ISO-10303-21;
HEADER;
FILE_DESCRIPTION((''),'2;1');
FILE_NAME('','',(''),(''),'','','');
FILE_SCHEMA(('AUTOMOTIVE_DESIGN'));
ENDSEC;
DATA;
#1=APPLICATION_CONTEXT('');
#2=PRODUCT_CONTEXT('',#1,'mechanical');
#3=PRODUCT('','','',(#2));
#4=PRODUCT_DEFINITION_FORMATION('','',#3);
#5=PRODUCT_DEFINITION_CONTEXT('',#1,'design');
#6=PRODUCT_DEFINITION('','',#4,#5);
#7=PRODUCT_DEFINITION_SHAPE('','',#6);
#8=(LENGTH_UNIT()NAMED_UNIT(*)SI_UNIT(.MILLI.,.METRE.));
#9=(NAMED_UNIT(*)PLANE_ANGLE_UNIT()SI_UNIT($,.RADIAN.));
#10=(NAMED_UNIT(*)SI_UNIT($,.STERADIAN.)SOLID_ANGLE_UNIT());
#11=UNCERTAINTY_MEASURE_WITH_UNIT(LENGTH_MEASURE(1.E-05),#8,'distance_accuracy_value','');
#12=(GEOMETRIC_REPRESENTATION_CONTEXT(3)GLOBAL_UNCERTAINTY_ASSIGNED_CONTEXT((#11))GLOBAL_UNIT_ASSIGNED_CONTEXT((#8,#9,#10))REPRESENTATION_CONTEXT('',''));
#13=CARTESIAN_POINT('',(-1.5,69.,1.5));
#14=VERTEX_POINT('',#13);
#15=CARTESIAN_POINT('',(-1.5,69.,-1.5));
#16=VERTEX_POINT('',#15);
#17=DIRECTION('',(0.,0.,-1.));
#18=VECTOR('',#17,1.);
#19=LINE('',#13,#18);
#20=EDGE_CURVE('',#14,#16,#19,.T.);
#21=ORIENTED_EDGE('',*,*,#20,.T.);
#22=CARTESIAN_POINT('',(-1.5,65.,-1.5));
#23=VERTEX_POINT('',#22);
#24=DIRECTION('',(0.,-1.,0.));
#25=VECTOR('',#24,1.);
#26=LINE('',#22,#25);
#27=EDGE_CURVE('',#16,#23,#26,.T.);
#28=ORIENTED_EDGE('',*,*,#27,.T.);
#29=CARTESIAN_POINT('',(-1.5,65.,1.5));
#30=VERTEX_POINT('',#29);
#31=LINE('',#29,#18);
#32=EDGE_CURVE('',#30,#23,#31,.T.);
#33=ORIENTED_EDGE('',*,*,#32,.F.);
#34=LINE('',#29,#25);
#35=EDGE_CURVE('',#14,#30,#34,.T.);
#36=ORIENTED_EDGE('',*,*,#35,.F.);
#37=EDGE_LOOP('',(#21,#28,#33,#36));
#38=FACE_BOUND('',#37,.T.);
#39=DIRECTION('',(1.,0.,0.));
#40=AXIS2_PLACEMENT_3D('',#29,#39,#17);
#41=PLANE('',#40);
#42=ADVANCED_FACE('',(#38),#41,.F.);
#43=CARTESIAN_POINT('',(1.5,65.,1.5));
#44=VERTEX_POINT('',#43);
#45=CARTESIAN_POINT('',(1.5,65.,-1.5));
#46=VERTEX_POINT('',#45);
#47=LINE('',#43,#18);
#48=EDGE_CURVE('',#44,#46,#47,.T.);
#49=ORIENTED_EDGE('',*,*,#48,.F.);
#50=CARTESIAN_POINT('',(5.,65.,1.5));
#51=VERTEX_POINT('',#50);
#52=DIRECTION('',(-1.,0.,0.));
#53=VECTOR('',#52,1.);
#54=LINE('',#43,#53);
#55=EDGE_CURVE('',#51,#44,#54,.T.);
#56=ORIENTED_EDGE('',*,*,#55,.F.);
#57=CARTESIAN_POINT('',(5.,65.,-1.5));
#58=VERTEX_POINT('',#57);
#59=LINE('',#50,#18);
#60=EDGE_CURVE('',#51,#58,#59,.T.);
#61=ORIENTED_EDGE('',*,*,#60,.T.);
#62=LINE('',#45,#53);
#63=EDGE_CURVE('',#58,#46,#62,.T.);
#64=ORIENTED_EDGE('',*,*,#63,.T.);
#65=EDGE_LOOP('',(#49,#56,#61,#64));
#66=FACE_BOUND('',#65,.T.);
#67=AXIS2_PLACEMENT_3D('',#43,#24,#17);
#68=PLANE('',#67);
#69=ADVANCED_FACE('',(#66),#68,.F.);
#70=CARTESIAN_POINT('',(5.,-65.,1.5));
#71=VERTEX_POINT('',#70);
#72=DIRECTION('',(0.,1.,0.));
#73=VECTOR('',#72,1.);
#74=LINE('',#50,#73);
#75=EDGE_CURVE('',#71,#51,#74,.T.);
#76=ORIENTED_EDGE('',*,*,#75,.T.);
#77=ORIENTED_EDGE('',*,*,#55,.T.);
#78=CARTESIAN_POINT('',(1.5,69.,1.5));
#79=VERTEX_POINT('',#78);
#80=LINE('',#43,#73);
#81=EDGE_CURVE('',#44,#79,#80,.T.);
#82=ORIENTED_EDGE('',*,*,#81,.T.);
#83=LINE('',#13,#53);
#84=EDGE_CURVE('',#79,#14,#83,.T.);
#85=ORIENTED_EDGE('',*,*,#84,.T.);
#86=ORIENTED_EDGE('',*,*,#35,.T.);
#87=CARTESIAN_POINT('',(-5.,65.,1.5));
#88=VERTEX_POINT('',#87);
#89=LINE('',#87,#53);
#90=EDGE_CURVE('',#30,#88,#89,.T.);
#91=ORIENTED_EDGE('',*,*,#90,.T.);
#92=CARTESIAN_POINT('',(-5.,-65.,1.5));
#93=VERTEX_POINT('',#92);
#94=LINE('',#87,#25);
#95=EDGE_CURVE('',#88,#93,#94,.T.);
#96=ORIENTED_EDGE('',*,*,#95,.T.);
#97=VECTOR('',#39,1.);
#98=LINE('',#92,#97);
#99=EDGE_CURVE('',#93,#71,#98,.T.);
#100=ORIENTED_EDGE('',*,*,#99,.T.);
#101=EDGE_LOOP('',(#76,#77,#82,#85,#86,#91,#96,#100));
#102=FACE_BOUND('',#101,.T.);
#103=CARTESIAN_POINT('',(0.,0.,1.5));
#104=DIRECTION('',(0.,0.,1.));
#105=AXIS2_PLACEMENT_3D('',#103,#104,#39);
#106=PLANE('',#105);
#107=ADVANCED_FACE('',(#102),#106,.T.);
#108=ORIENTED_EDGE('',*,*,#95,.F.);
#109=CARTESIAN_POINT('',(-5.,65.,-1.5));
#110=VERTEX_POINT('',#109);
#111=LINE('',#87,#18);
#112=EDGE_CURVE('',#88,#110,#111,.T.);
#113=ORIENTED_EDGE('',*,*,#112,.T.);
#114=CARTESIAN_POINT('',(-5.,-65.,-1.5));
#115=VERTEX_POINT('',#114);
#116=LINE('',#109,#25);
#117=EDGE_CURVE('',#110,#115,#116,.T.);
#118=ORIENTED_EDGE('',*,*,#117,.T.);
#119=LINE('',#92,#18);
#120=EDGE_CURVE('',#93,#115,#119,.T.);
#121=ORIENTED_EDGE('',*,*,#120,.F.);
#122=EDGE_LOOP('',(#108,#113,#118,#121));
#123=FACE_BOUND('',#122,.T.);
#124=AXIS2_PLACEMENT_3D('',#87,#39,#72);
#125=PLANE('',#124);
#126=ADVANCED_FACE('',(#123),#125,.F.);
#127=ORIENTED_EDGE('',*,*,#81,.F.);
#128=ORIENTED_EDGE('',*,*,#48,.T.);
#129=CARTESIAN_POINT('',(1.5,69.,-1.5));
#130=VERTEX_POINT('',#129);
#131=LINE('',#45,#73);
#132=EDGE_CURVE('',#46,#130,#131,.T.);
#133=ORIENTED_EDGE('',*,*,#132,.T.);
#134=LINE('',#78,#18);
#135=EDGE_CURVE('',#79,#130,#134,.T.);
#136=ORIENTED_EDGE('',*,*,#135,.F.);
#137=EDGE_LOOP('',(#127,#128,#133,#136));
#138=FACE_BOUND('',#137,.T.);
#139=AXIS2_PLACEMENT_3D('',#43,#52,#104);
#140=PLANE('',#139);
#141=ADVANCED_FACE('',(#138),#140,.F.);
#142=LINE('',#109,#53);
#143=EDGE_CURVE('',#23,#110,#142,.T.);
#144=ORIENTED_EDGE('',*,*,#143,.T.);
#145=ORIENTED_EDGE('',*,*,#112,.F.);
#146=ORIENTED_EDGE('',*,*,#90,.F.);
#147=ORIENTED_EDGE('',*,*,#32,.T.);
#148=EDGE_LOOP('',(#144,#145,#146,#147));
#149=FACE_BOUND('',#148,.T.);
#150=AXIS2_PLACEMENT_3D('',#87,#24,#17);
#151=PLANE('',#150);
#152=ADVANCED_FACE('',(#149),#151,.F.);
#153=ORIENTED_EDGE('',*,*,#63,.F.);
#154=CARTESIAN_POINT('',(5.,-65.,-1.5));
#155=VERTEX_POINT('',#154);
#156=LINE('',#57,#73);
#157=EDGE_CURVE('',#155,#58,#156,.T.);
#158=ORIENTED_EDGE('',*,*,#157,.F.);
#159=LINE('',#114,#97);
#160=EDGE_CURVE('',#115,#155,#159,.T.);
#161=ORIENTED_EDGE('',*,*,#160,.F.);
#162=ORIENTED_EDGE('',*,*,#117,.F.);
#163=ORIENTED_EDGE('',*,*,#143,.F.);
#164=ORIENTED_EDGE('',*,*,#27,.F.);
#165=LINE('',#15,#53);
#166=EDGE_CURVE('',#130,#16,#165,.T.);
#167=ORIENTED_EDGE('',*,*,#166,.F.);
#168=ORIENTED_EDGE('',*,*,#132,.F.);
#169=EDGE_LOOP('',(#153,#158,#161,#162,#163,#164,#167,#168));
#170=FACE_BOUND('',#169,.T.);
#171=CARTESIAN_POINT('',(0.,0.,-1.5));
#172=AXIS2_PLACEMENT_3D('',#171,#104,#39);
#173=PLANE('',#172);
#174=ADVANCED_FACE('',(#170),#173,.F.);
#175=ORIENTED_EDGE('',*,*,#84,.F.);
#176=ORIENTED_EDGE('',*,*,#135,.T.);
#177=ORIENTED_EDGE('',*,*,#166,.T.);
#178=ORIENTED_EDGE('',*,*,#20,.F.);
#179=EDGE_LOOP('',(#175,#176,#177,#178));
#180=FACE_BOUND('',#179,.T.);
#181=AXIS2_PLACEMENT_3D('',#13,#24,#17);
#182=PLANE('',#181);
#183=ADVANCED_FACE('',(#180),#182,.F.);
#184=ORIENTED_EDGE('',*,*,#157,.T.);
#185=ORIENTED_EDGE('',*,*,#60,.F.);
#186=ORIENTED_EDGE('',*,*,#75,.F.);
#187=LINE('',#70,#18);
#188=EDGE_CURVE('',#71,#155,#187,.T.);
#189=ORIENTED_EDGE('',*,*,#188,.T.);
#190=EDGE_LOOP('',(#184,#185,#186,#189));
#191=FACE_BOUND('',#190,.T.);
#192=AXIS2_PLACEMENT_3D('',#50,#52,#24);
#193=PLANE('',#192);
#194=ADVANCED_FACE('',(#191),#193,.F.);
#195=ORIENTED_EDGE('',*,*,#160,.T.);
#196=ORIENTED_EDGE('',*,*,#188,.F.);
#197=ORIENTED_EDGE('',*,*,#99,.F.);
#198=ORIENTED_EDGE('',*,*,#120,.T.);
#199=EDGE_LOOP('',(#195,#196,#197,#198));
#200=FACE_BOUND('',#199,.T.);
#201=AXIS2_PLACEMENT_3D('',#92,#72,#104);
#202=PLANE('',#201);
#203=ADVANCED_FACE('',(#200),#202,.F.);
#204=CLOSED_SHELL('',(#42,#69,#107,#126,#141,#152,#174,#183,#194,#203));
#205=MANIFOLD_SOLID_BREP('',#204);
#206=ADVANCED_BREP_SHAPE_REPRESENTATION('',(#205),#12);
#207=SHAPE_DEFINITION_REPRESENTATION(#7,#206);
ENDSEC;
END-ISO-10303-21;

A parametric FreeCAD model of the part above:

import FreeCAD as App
import Part
import Sketcher

V = App.Vector
Q = App.Units.Quantity


def add_polygon(sketch, points):
    """Adds a closed chain of lines whose ends are joined by coincident constraints."""
    first, n = sketch.GeometryCount, len(points)
    for a, b in zip(points, points[1:] + points[:1]):
        sketch.addGeometry(Part.LineSegment(App.Vector(*a, 0), App.Vector(*b, 0)), False)
    for i in range(n):
        sketch.addConstraint(Sketcher.Constraint("Coincident", first + i, 2, first + (i + 1) % n, 1))

doc = App.newDocument("Part")
body = doc.addObject("PartDesign::Body", "Body")

# Sketch on XY plane
sketch1 = body.newObject("Sketcher::SketchObject", "Sketch")
sketch1.AttachmentSupport = (doc.getObject("XY_Plane"), [""])
sketch1.MapMode = "FlatFace"
add_polygon(sketch1, [(5, 65), (1.5, 65), (1.5, 69), (-1.5, 69), (-1.5, 65), (-5, 65), (-5, -65), (5, -65)])  # lines 0-7
sketch1.addConstraint(Sketcher.Constraint("Horizontal", 0))
sketch1.addConstraint(Sketcher.Constraint("Vertical", 1))
sketch1.addConstraint(Sketcher.Constraint("Horizontal", 2))
sketch1.addConstraint(Sketcher.Constraint("Vertical", 3))
sketch1.addConstraint(Sketcher.Constraint("Horizontal", 4))
sketch1.addConstraint(Sketcher.Constraint("Vertical", 5))
sketch1.addConstraint(Sketcher.Constraint("Horizontal", 6))
sketch1.addConstraint(Sketcher.Constraint("Vertical", 7))
sketch1.addConstraint(Sketcher.Constraint("Symmetric", 4, 2, 6, 2, -1, 1))
sketch1.addConstraint(Sketcher.Constraint("Symmetric", 0, 2, 3, 2, -2))
sketch1.addConstraint(Sketcher.Constraint("DistanceX", 2, 2, 2, 1, Q("3 mm")))
sketch1.addConstraint(Sketcher.Constraint("DistanceX", 6, 1, 6, 2, Q("10 mm")))
sketch1.addConstraint(Sketcher.Constraint("DistanceY", 1, 1, 1, 2, Q("4 mm")))
sketch1.addConstraint(Sketcher.Constraint("DistanceY", 5, 2, 5, 1, Q("130 mm")))
pad1 = body.newObject("PartDesign::Pad", "Pad")
pad1.Profile = sketch1
pad1.Length = 3
pad1.Midplane = True

doc.recompute()
